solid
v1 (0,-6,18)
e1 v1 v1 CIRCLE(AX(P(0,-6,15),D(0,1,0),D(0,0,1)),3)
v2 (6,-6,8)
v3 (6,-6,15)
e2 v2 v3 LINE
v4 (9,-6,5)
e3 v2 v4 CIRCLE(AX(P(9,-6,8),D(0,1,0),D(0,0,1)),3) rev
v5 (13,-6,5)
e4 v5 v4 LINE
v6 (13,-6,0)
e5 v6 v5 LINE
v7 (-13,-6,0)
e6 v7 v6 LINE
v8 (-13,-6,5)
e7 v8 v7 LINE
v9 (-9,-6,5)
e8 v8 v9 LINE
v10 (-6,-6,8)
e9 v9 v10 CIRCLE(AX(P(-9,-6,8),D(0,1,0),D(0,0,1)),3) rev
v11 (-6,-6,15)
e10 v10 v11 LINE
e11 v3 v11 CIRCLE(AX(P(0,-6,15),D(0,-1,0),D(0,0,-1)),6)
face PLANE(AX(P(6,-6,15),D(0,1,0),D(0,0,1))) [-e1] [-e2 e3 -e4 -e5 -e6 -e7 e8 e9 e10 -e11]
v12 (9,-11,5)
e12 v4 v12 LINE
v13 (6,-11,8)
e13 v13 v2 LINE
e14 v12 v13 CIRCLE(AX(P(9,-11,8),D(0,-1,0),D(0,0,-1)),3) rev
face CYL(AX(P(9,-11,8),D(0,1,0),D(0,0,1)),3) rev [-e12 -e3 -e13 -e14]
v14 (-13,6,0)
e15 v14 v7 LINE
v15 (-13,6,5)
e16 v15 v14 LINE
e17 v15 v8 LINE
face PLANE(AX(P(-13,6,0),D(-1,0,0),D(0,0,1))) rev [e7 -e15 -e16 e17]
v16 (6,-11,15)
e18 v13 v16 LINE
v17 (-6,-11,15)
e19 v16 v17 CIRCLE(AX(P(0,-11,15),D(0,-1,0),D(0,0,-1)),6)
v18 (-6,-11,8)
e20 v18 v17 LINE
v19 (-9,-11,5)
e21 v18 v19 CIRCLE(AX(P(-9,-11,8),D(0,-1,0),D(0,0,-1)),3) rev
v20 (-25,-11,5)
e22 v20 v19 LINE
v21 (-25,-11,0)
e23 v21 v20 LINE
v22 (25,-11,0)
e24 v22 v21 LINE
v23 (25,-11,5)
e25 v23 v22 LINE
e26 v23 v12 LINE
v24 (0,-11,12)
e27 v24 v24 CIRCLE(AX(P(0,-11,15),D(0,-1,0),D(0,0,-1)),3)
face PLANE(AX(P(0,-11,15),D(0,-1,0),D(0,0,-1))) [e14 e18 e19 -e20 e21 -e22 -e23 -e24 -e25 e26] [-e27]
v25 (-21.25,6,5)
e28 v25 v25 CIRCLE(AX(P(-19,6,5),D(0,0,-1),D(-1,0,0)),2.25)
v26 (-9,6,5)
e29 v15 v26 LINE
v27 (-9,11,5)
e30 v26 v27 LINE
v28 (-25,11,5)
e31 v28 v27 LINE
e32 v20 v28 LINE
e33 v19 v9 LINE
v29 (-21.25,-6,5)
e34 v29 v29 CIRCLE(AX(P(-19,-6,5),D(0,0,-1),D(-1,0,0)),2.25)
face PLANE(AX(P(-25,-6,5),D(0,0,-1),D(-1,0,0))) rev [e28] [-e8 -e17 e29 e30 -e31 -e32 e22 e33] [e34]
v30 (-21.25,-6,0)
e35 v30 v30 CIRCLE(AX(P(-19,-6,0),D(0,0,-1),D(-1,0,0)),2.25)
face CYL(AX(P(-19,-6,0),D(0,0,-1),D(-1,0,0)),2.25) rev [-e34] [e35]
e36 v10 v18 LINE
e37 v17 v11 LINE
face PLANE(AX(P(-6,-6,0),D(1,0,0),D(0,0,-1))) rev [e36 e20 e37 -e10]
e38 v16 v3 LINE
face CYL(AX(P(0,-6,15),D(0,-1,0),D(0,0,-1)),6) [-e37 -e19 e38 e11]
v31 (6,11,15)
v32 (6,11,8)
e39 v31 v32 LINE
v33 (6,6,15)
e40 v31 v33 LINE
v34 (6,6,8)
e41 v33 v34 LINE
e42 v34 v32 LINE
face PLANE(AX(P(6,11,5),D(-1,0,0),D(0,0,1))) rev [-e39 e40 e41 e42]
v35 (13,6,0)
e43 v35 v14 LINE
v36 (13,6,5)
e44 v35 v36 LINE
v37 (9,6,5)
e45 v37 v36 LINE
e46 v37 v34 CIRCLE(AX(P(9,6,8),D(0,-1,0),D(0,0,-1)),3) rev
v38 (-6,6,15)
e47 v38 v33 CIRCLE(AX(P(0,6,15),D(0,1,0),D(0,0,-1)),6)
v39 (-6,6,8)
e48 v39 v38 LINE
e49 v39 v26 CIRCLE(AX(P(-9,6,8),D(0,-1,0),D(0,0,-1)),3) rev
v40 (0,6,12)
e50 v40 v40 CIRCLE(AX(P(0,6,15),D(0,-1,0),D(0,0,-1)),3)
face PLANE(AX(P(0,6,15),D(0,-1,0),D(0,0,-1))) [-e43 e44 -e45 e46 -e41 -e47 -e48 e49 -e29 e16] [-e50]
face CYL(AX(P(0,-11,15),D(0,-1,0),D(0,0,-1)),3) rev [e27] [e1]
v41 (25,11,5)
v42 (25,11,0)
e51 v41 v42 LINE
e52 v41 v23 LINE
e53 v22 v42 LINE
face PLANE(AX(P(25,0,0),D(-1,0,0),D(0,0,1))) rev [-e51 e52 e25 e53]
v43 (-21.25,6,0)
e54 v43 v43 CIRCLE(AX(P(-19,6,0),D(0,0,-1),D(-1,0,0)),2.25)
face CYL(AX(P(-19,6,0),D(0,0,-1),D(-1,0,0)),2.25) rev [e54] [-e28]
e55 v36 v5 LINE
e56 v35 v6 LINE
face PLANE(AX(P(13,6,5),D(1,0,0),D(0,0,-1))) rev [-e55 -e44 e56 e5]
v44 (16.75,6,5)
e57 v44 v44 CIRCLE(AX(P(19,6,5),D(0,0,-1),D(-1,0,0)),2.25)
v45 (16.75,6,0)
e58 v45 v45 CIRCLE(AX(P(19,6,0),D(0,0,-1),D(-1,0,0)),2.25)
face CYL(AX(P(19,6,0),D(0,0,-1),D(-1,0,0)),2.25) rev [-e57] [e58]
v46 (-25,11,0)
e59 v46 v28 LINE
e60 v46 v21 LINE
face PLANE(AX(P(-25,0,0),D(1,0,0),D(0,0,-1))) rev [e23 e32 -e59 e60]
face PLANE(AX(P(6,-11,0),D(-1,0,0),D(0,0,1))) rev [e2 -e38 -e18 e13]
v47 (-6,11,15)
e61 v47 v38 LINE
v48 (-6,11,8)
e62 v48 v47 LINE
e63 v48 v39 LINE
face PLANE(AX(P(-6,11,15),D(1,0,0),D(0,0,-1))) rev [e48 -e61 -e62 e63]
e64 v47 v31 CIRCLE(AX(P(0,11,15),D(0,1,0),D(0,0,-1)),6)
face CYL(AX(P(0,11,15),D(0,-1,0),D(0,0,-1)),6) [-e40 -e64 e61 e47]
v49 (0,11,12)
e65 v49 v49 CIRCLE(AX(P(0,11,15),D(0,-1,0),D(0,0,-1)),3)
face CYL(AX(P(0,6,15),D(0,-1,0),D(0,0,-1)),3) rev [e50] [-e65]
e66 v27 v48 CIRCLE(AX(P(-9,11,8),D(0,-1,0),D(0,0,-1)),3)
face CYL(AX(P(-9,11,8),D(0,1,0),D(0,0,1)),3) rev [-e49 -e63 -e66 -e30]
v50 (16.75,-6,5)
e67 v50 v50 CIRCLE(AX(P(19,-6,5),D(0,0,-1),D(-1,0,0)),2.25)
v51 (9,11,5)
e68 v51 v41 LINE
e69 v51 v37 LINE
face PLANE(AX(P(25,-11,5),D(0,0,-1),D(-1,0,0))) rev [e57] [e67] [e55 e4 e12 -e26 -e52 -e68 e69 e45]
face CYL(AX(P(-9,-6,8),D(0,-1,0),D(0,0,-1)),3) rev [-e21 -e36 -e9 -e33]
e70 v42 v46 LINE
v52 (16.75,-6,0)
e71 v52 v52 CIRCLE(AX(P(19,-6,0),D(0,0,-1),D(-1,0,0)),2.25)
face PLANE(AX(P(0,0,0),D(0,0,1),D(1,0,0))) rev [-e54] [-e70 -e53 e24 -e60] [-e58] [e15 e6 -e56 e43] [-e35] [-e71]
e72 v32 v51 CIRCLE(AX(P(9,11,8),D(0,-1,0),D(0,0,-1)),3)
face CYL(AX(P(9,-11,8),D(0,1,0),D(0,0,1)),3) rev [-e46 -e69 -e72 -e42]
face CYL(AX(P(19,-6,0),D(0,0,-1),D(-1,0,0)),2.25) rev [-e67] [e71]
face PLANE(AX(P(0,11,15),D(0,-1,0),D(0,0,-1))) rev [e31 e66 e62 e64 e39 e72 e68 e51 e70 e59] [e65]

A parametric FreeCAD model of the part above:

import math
import FreeCAD as App
import Part
import Sketcher
from FreeCAD import Vector


def edges_at(feature, points):
    """Names of the edges that pass closest to the given points."""
    edges = feature.Shape.Edges
    near = lambda p: min(range(len(edges)), key=lambda i: edges[i].distToShape(Part.Vertex(*p))[0])
    return sorted({f"Edge{near(p) + 1}" for p in points})

doc = App.newDocument("Part")
body = doc.addObject("PartDesign::Body", "Body")

sketch1 = body.newObject("Sketcher::SketchObject", "Sketch")
sketch1.AttachmentSupport = (doc.getObject("XY_Plane"), [""])
sketch1.MapMode = "FlatFace"
sketch1.AttachmentOffset = App.Placement(Vector(0, 0, 15), App.Rotation())
sketch1.addGeometry([
    Part.LineSegment(Vector(0, -6, 0), Vector(0, -11, 0)),
    Part.LineSegment(Vector(0, -11, 0), Vector(-6, -11, 0)),
    Part.LineSegment(Vector(-6, -11, 0), Vector(-6, -6, 0)),
    Part.LineSegment(Vector(-6, -6, 0), Vector(0, -6, 0)),
], False)
sketch1.addConstraint([
    Sketcher.Constraint("Coincident", 0, 2, 1, 1),
    Sketcher.Constraint("Coincident", 1, 2, 2, 1),
    Sketcher.Constraint("Coincident", 2, 2, 3, 1),
    Sketcher.Constraint("Coincident", 3, 2, 0, 1),
    Sketcher.Constraint("Vertical", 0),
    Sketcher.Constraint("Horizontal", 1),
    Sketcher.Constraint("Vertical", 2),
    Sketcher.Constraint("Horizontal", 3),
    Sketcher.Constraint("PointOnObject", 0, 2, -2),
    Sketcher.Constraint("DistanceX", 1, 2, 1, 1, 6.0),
    Sketcher.Constraint("DistanceY", 0, 2, 0, 1, 5.0),
    Sketcher.Constraint("DistanceY", 0, 2, -1, 1, 11.0),
])
revolution = body.newObject("PartDesign::Revolution", "Revolution")
revolution.Profile = sketch1
revolution.ReferenceAxis = (sketch1, ["V_Axis"])
revolution.Angle = 180

sketch2 = body.newObject("Sketcher::SketchObject", "Sketch001")
sketch2.AttachmentSupport = (doc.getObject("XY_Plane"), [""])
sketch2.MapMode = "FlatFace"
sketch2.AttachmentOffset = App.Placement(Vector(0, 0, 15), App.Rotation())
sketch2.addGeometry([
    Part.LineSegment(Vector(6, -6, 0), Vector(6, -11, 0)),
    Part.LineSegment(Vector(6, -11, 0), Vector(-6, -11, 0)),
    Part.LineSegment(Vector(-6, -11, 0), Vector(-6, -6, 0)),
    Part.LineSegment(Vector(-6, -6, 0), Vector(6, -6, 0)),
], False)
sketch2.addConstraint([
    Sketcher.Constraint("Coincident", 0, 2, 1, 1),
    Sketcher.Constraint("Coincident", 1, 2, 2, 1),
    Sketcher.Constraint("Coincident", 2, 2, 3, 1),
    Sketcher.Constraint("Coincident", 3, 2, 0, 1),
    Sketcher.Constraint("Vertical", 0),
    Sketcher.Constraint("Horizontal", 1),
    Sketcher.Constraint("Vertical", 2),
    Sketcher.Constraint("Horizontal", 3),
    Sketcher.Constraint("DistanceX", 1, 2, 1, 1, 12.0),
    Sketcher.Constraint("DistanceY", 0, 2, 0, 1, 5.0),
    Sketcher.Constraint("DistanceX", -1, 1, 0, 2, 6.0),
    Sketcher.Constraint("DistanceY", 0, 2, -1, 1, 11.0),
])
pad1 = body.newObject("PartDesign::Pad", "Pad")
pad1.Profile = sketch2
pad1.Length = 15
pad1.Reversed = True

sketch3 = body.newObject("Sketcher::SketchObject", "Sketch002")
sketch3.AttachmentSupport = (doc.getObject("YZ_Plane"), [""])
sketch3.MapMode = "FlatFace"
sketch3.AttachmentOffset = App.Placement(Vector(0, 0, -6), App.Rotation())
sketch3.addGeometry([
    Part.LineSegment(Vector(-6, 0, 0), Vector(-11, 0, 0)),
    Part.LineSegment(Vector(-11, 0, 0), Vector(-11, 5, 0)),
    Part.LineSegment(Vector(-11, 5, 0), Vector(-6, 5, 0)),
    Part.LineSegment(Vector(-6, 5, 0), Vector(-6, 0, 0)),
], False)
sketch3.addConstraint([
    Sketcher.Constraint("Coincident", 0, 2, 1, 1),
    Sketcher.Constraint("Coincident", 1, 2, 2, 1),
    Sketcher.Constraint("Coincident", 2, 2, 3, 1),
    Sketcher.Constraint("Coincident", 3, 2, 0, 1),
    Sketcher.Constraint("Horizontal", 0),
    Sketcher.Constraint("Vertical", 1),
    Sketcher.Constraint("Horizontal", 2),
    Sketcher.Constraint("Vertical", 3),
    Sketcher.Constraint("PointOnObject", 0, 2, -1),
    Sketcher.Constraint("Equal", 2, 1),
    Sketcher.Constraint("DistanceX", 0, 2, 0, 1, 5.0),
    Sketcher.Constraint("DistanceX", 0, 2, -1, 1, 11.0),
])
pad2 = body.newObject("PartDesign::Pad", "Pad001")
pad2.Profile = sketch3
pad2.Length = 19
pad2.Reversed = True

sketch4 = body.newObject("Sketcher::SketchObject", "Sketch003")
sketch4.AttachmentSupport = (doc.getObject("YZ_Plane"), [""])
sketch4.MapMode = "FlatFace"
sketch4.AttachmentOffset = App.Placement(Vector(0, 0, 6), App.Rotation())
sketch4.addGeometry([
    Part.LineSegment(Vector(-6, 5, 0), Vector(-11, 5, 0)),
    Part.LineSegment(Vector(-11, 5, 0), Vector(-11, 0, 0)),
    Part.LineSegment(Vector(-11, 0, 0), Vector(-6, 0, 0)),
    Part.LineSegment(Vector(-6, 0, 0), Vector(-6, 5, 0)),
], False)
sketch4.addConstraint([
    Sketcher.Constraint("Coincident", 0, 2, 1, 1),
    Sketcher.Constraint("Coincident", 1, 2, 2, 1),
    Sketcher.Constraint("Coincident", 2, 2, 3, 1),
    Sketcher.Constraint("Coincident", 3, 2, 0, 1),
    Sketcher.Constraint("Horizontal", 0),
    Sketcher.Constraint("Vertical", 1),
    Sketcher.Constraint("Horizontal", 2),
    Sketcher.Constraint("Vertical", 3),
    Sketcher.Constraint("PointOnObject", 1, 2, -1),
    Sketcher.Constraint("Equal", 2, 1),
    Sketcher.Constraint("DistanceX", 0, 2, 0, 1, 5.0),
    Sketcher.Constraint("DistanceX", 0, 2, -1, 1, 11.0),
])
pad3 = body.newObject("PartDesign::Pad", "Pad002")
pad3.Profile = sketch4
pad3.Length = 19

sketch5 = body.newObject("Sketcher::SketchObject", "Sketch004")
sketch5.AttachmentSupport = (doc.getObject("XZ_Plane"), [""])
sketch5.MapMode = "FlatFace"
sketch5.AttachmentOffset = App.Placement(Vector(0, 0, 6), App.Rotation())
sketch5.addGeometry([
    Part.LineSegment(Vector(25, 5, 0), Vector(25, 0, 0)),
    Part.LineSegment(Vector(25, 0, 0), Vector(13, 0, 0)),
    Part.LineSegment(Vector(13, 0, 0), Vector(13, 5, 0)),
    Part.LineSegment(Vector(13, 5, 0), Vector(25, 5, 0)),
], False)
sketch5.addConstraint([
    Sketcher.Constraint("Coincident", 0, 2, 1, 1),
    Sketcher.Constraint("Coincident", 1, 2, 2, 1),
    Sketcher.Constraint("Coincident", 2, 2, 3, 1),
    Sketcher.Constraint("Coincident", 3, 2, 0, 1),
    Sketcher.Constraint("Vertical", 0),
    Sketcher.Constraint("Horizontal", 1),
    Sketcher.Constraint("Vertical", 2),
    Sketcher.Constraint("Horizontal", 3),
    Sketcher.Constraint("PointOnObject", 0, 2, -1),
    Sketcher.Constraint("DistanceX", 1, 2, 1, 1, 12.0),
    Sketcher.Constraint("DistanceY", 0, 2, 0, 1, 5.0),
    Sketcher.Constraint("DistanceX", -1, 1, 0, 2, 25.0),
])
pad4 = body.newObject("PartDesign::Pad", "Pad003")
pad4.Profile = sketch5
pad4.Length = 12
pad4.Reversed = True

sketch6 = body.newObject("Sketcher::SketchObject", "Sketch005")
sketch6.AttachmentSupport = (doc.getObject("XZ_Plane"), [""])
sketch6.MapMode = "FlatFace"
sketch6.AttachmentOffset = App.Placement(Vector(0, 0, 6), App.Rotation())
sketch6.addGeometry([
    Part.LineSegment(Vector(-13, 5, 0), Vector(-13, 0, 0)),
    Part.LineSegment(Vector(-13, 0, 0), Vector(-25, 0, 0)),
    Part.LineSegment(Vector(-25, 0, 0), Vector(-25, 5, 0)),
    Part.LineSegment(Vector(-25, 5, 0), Vector(-13, 5, 0)),
], False)
sketch6.addConstraint([
    Sketcher.Constraint("Coincident", 0, 2, 1, 1),
    Sketcher.Constraint("Coincident", 1, 2, 2, 1),
    Sketcher.Constraint("Coincident", 2, 2, 3, 1),
    Sketcher.Constraint("Coincident", 3, 2, 0, 1),
    Sketcher.Constraint("Vertical", 0),
    Sketcher.Constraint("Horizontal", 1),
    Sketcher.Constraint("Vertical", 2),
    Sketcher.Constraint("Horizontal", 3),
    Sketcher.Constraint("PointOnObject", 0, 2, -1),
    Sketcher.Constraint("DistanceX", 1, 2, 1, 1, 12.0),
    Sketcher.Constraint("DistanceY", 0, 2, 0, 1, 5.0),
    Sketcher.Constraint("DistanceX", 0, 2, -1, 1, 13.0),
])
pad5 = body.newObject("PartDesign::Pad", "Pad004")
pad5.Profile = sketch6
pad5.Length = 12
pad5.Reversed = True

sketch7 = body.newObject("Sketcher::SketchObject", "Sketch006")
sketch7.AttachmentSupport = (doc.getObject("XZ_Plane"), [""])
sketch7.MapMode = "FlatFace"
sketch7.AttachmentOffset = App.Placement(Vector(0, 0, -11), App.Rotation())
sketch7.addGeometry([
    Part.LineSegment(Vector(-25, 0, 0), Vector(-25, 5, 0)),
    Part.LineSegment(Vector(-25, 5, 0), Vector(-6, 5, 0)),
    Part.LineSegment(Vector(-6, 5, 0), Vector(-6, 15, 0)),
    Part.ArcOfCircle(Part.Circle(Vector(0, 15, 0), Vector(0, 0, 1), 6), math.radians(0), math.radians(180)),
    Part.LineSegment(Vector(6, 15, 0), Vector(6, 5, 0)),
    Part.LineSegment(Vector(6, 5, 0), Vector(25, 5, 0)),
    Part.LineSegment(Vector(25, 5, 0), Vector(25, 0, 0)),
    Part.LineSegment(Vector(25, 0, 0), Vector(-25, 0, 0)),
], False)
sketch7.addConstraint([
    Sketcher.Constraint("Coincident", 0, 2, 1, 1),
    Sketcher.Constraint("Coincident", 1, 2, 2, 1),
    Sketcher.Constraint("Tangent", 2, 2, 3, 2),
    Sketcher.Constraint("Tangent", 3, 1, 4, 1),
    Sketcher.Constraint("Coincident", 4, 2, 5, 1),
    Sketcher.Constraint("Coincident", 5, 2, 6, 1),
    Sketcher.Constraint("Coincident", 6, 2, 7, 1),
    Sketcher.Constraint("Coincident", 7, 2, 0, 1),
    Sketcher.Constraint("Vertical", 0),
    Sketcher.Constraint("Horizontal", 1),
    Sketcher.Constraint("Vertical", 2),
    Sketcher.Constraint("Vertical", 4),
    Sketcher.Constraint("Horizontal", 5),
    Sketcher.Constraint("Vertical", 6),
    Sketcher.Constraint("Horizontal", 7),
    Sketcher.Constraint("Symmetric", 6, 2, 7, 2, -1, 1),
    Sketcher.Constraint("Symmetric", 1, 2, 4, 2, -2),
    Sketcher.Constraint("Radius", 3, 6.0),
    Sketcher.Constraint("DistanceX", 1, 1, 1, 2, 19.0),
    Sketcher.Constraint("DistanceY", 0, 1, 0, 2, 5.0),
    Sketcher.Constraint("DistanceY", 2, 1, 2, 2, 10.0),
])
pad6 = body.newObject("PartDesign::Pad", "Pad005")
pad6.Profile = sketch7
pad6.Length = 5

sketch8 = body.newObject("Sketcher::SketchObject", "Sketch007")
sketch8.AttachmentSupport = (doc.getObject("XZ_Plane"), [""])
sketch8.MapMode = "FlatFace"
sketch8.AttachmentOffset = App.Placement(Vector(0, 0, -6), App.Rotation())
sketch8.addGeometry(Part.Circle(Vector(0, 15, 0), Vector(0, 0, 1), 3), False)
sketch8.addConstraint([
    Sketcher.Constraint("PointOnObject", 0, 3, -2),
    Sketcher.Constraint("Diameter", 0, 6.0),
    Sketcher.Constraint("DistanceY", -1, 1, 0, 3, 15.0),
])
doc.recompute()
hole = body.newObject("PartDesign::Hole", "Hole")
hole.Profile = sketch8
hole.ThreadType = "None"
hole.Diameter = 6
hole.DepthType = "Dimension"
hole.Depth = 5
hole.DrillPoint = "Flat"

sketch9 = body.newObject("Sketcher::SketchObject", "Sketch008")
sketch9.AttachmentSupport = (doc.getObject("XZ_Plane"), [""])
sketch9.MapMode = "FlatFace"
sketch9.AttachmentOffset = App.Placement(Vector(0, 0, 11), App.Rotation())
sketch9.addGeometry(Part.Circle(Vector(0, 15, 0), Vector(0, 0, 1), 3), False)
sketch9.addConstraint([
    Sketcher.Constraint("PointOnObject", 0, 3, -2),
    Sketcher.Constraint("Diameter", 0, 6.0),
    Sketcher.Constraint("DistanceY", -1, 1, 0, 3, 15.0),
])
doc.recompute()
hole2 = body.newObject("PartDesign::Hole", "Hole001")
hole2.Profile = sketch9
hole2.ThreadType = "None"
hole2.Diameter = 6
hole2.DepthType = "Dimension"
hole2.Depth = 22
hole2.DrillPoint = "Flat"

sketch10 = body.newObject("Sketcher::SketchObject", "Sketch009")
sketch10.AttachmentSupport = (doc.getObject("XY_Plane"), [""])
sketch10.MapMode = "FlatFace"
sketch10.addGeometry([
    Part.Circle(Vector(19, -6, 0), Vector(0, 0, 1), 2.2),
    Part.Circle(Vector(-19, 6, 0), Vector(0, 0, 1), 2.2),
    Part.Circle(Vector(-19, -6, 0), Vector(0, 0, 1), 2.2),
    Part.Circle(Vector(19, 6, 0), Vector(0, 0, 1), 2.2),
], False)
sketch10.addConstraint([
    Sketcher.Constraint("Equal", 0, 1),
    Sketcher.Constraint("Equal", 1, 2),
    Sketcher.Constraint("Equal", 2, 3),
    Sketcher.Constraint("Symmetric", 0, 3, 1, 3, -1, 1),
    Sketcher.Constraint("Symmetric", 2, 3, 3, 3, -1, 1),
    Sketcher.Constraint("Symmetric", 0, 3, 2, 3, -2),
    Sketcher.Constraint("Diameter", 0, 4.5),
    Sketcher.Constraint("DistanceX", -1, 1, 0, 3, 19.0),
    Sketcher.Constraint("DistanceY", 0, 3, -1, 1, 6.0),
])
doc.recompute()
hole3 = body.newObject("PartDesign::Hole", "Hole002")
hole3.Profile = sketch10
hole3.ThreadType = "None"
hole3.Diameter = 4.5
hole3.DepthType = "ThroughAll"
hole3.Reversed = True
doc.recompute()

fillet = body.newObject("PartDesign::Fillet", "Fillet")
fillet.Base = (hole3, edges_at(hole3, [
    (-6, -8.5, 5),
    (6, -8.5, 5),
    (-6, 8.5, 5),
    (6, 8.5, 5),
]))
fillet.Radius = 3

doc.recompute()
